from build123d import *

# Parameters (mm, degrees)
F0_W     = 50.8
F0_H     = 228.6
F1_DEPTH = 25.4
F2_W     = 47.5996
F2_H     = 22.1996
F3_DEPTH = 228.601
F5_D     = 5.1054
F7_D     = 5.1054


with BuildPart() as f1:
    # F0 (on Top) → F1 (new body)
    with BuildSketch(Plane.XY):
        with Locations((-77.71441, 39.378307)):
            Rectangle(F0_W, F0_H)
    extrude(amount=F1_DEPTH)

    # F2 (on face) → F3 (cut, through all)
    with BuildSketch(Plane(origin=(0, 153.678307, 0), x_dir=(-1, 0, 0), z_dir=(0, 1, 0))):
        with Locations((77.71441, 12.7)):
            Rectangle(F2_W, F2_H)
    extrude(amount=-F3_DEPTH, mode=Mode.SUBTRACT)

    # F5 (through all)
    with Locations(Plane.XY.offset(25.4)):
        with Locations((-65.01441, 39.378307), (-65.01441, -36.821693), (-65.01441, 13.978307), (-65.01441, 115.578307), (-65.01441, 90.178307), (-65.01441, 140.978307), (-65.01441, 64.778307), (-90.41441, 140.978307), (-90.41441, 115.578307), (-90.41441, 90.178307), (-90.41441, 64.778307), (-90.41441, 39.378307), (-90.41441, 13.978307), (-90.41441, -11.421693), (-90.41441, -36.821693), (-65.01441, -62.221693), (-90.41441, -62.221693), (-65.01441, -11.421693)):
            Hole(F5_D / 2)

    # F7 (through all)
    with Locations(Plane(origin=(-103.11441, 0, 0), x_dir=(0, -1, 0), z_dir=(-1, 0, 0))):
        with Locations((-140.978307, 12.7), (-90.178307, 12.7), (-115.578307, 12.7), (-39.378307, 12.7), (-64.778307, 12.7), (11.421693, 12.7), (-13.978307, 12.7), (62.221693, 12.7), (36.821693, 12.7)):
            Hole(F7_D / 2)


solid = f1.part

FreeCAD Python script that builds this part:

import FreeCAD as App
import Part
import Sketcher

V = App.Vector
Q = App.Units.Quantity

doc = App.newDocument("Part")
body = doc.addObject("PartDesign::Body", "Body")

sketch1 = body.newObject("Sketcher::SketchObject", "Sketch")
sketch1.AttachmentSupport = (doc.getObject("XY_Plane"), [""])
sketch1.MapMode = "FlatFace"
sketch1.addGeometry([
    Part.LineSegment(V(-103, 154, 0), V(-103, -75, 0)),
    Part.LineSegment(V(-103, -75, 0), V(-52, -75, 0)),
    Part.LineSegment(V(-52, -75, 0), V(-52, 154, 0)),
    Part.LineSegment(V(-52, 154, 0), V(-103, 154, 0)),
], False)
sketch1.addConstraint([
    Sketcher.Constraint("Coincident", 0, 2, 1, 1),
    Sketcher.Constraint("Coincident", 1, 2, 2, 1),
    Sketcher.Constraint("Coincident", 2, 2, 3, 1),
    Sketcher.Constraint("Coincident", 3, 2, 0, 1),
    Sketcher.Constraint("Vertical", 0),
    Sketcher.Constraint("Horizontal", 1),
    Sketcher.Constraint("Vertical", 2),
    Sketcher.Constraint("Horizontal", 3),
    Sketcher.Constraint("DistanceX", 1, 1, 1, 2, Q("2 in")),
    Sketcher.Constraint("DistanceY", 0, 2, 0, 1, Q("9 in")),
    Sketcher.Constraint("DistanceX", 0, 2, -1, 1, 103.11441),
    Sketcher.Constraint("DistanceY", 0, 2, -1, 1, 74.921693),
])
pad1 = body.newObject("PartDesign::Pad", "Pad")
pad1.Profile = sketch1
pad1.Length = Q("1 in")

sketch2 = body.newObject("Sketcher::SketchObject", "Sketch001")
sketch2.AttachmentSupport = (doc.getObject("XZ_Plane"), [""])
sketch2.MapMode = "FlatFace"
sketch2.AttachmentOffset = App.Placement(V(0, 0, -153.678307), App.Rotation())
sketch2.addGeometry([
    Part.LineSegment(V(-54, 24, 0), V(-54, 2, 0)),
    Part.LineSegment(V(-54, 2, 0), V(-102, 2, 0)),
    Part.LineSegment(V(-102, 2, 0), V(-102, 24, 0)),
    Part.LineSegment(V(-102, 24, 0), V(-54, 24, 0)),
], False)
sketch2.addConstraint([
    Sketcher.Constraint("Coincident", 0, 2, 1, 1),
    Sketcher.Constraint("Coincident", 1, 2, 2, 1),
    Sketcher.Constraint("Coincident", 2, 2, 3, 1),
    Sketcher.Constraint("Coincident", 3, 2, 0, 1),
    Sketcher.Constraint("Vertical", 0),
    Sketcher.Constraint("Horizontal", 1),
    Sketcher.Constraint("Vertical", 2),
    Sketcher.Constraint("Horizontal", 3),
    Sketcher.Constraint("DistanceX", 1, 2, 1, 1, Q("1.874 in")),
    Sketcher.Constraint("DistanceY", 0, 2, 0, 1, Q("0.874 in")),
    Sketcher.Constraint("DistanceY", -1, 1, 0, 2, Q("0.063 in")),
    Sketcher.Constraint("DistanceX", 0, 2, -1, 1, 53.91461),
])
pocket1 = body.newObject("PartDesign::Pocket", "Pocket")
pocket1.Profile = sketch2
pocket1.Type = "ThroughAll"
pocket1.Reversed = True

sketch3 = body.newObject("Sketcher::SketchObject", "Sketch002")
sketch3.AttachmentSupport = (doc.getObject("XY_Plane"), [""])
sketch3.MapMode = "FlatFace"
sketch3.AttachmentOffset = App.Placement(V(0, 0, 1 * 25.4), App.Rotation())
sketch3.addGeometry([
    Part.Circle(V(-65, 39.4, 0), V(0, 0, 1), 2.6),
    Part.Circle(V(-65, -36.8, 0), V(0, 0, 1), 2.6),
    Part.Circle(V(-65, 14, 0), V(0, 0, 1), 2.6),
    Part.Circle(V(-65, 115.6, 0), V(0, 0, 1), 2.6),
    Part.Circle(V(-65, 90.2, 0), V(0, 0, 1), 2.6),
    Part.Circle(V(-65, 141, 0), V(0, 0, 1), 2.6),
    Part.Circle(V(-65, 64.8, 0), V(0, 0, 1), 2.6),
    Part.Circle(V(-90.4, 141, 0), V(0, 0, 1), 2.6),
    Part.Circle(V(-90.4, 115.6, 0), V(0, 0, 1), 2.6),
    Part.Circle(V(-90.4, 90.2, 0), V(0, 0, 1), 2.6),
    Part.Circle(V(-90.4, 64.8, 0), V(0, 0, 1), 2.6),
    Part.Circle(V(-90.4, 39.4, 0), V(0, 0, 1), 2.6),
    Part.Circle(V(-90.4, 14, 0), V(0, 0, 1), 2.6),
    Part.Circle(V(-90.4, -11.4, 0), V(0, 0, 1), 2.6),
    Part.Circle(V(-90.4, -36.8, 0), V(0, 0, 1), 2.6),
    Part.Circle(V(-65, -62.2, 0), V(0, 0, 1), 2.6),
    Part.Circle(V(-90.4, -62.2, 0), V(0, 0, 1), 2.6),
    Part.Circle(V(-65, -11.4, 0), V(0, 0, 1), 2.6),
], False)
sketch3.addConstraint([
    Sketcher.Constraint("Equal", 0, 1),
    Sketcher.Constraint("Equal", 1, 2),
    Sketcher.Constraint("Equal", 2, 3),
    Sketcher.Constraint("Equal", 3, 4),
    Sketcher.Constraint("Equal", 4, 5),
    Sketcher.Constraint("Equal", 5, 6),
    Sketcher.Constraint("Equal", 6, 7),
    Sketcher.Constraint("Equal", 7, 8),
    Sketcher.Constraint("Equal", 8, 9),
    Sketcher.Constraint("Equal", 9, 10),
    Sketcher.Constraint("Equal", 10, 11),
    Sketcher.Constraint("Equal", 11, 12),
    Sketcher.Constraint("Equal", 12, 13),
    Sketcher.Constraint("Equal", 13, 14),
    Sketcher.Constraint("Equal", 14, 15),
    Sketcher.Constraint("Equal", 15, 16),
    Sketcher.Constraint("Equal", 16, 17),
    Sketcher.Constraint("Horizontal", 5, 3, 7, 3),
    Sketcher.Constraint("Horizontal", 3, 3, 8, 3),
    Sketcher.Constraint("Horizontal", 4, 3, 9, 3),
    Sketcher.Constraint("Horizontal", 6, 3, 10, 3),
    Sketcher.Constraint("Horizontal", 0, 3, 11, 3),
    Sketcher.Constraint("Horizontal", 2, 3, 12, 3),
    Sketcher.Constraint("Horizontal", 1, 3, 14, 3),
    Sketcher.Constraint("Horizontal", 15, 3, 16, 3),
    Sketcher.Constraint("Horizontal", 13, 3, 17, 3),
    Sketcher.Constraint("Vertical", 0, 3, 1, 3),
    Sketcher.Constraint("Vertical", 1, 3, 2, 3),
    Sketcher.Constraint("Vertical", 2, 3, 3, 3),
    Sketcher.Constraint("Vertical", 3, 3, 4, 3),
    Sketcher.Constraint("Vertical", 4, 3, 5, 3),
    Sketcher.Constraint("Vertical", 5, 3, 6, 3),
    Sketcher.Constraint("Vertical", 7, 3, 8, 3),
    Sketcher.Constraint("Vertical", 8, 3, 9, 3),
    Sketcher.Constraint("Vertical", 9, 3, 10, 3),
    Sketcher.Constraint("Vertical", 10, 3, 11, 3),
    Sketcher.Constraint("Vertical", 11, 3, 12, 3),
    Sketcher.Constraint("Vertical", 12, 3, 13, 3),
    Sketcher.Constraint("Vertical", 13, 3, 14, 3),
    Sketcher.Constraint("Vertical", 6, 3, 15, 3),
    Sketcher.Constraint("Vertical", 14, 3, 16, 3),
    Sketcher.Constraint("Vertical", 15, 3, 17, 3),
    Sketcher.Constraint("Diameter", 0, Q("0.201 in")),
    Sketcher.Constraint("DistanceY", 1, 3, 0, 3, Q("3 in")),
    Sketcher.Constraint("DistanceY", 2, 3, 0, 3, Q("1 in")),
    Sketcher.Constraint("DistanceY", 0, 3, 3, 3, Q("3 in")),
    Sketcher.Constraint("DistanceY", 4, 3, 3, 3, Q("1 in")),
    Sketcher.Constraint("DistanceY", 3, 3, 5, 3, Q("1 in")),
    Sketcher.Constraint("DistanceY", 0, 3, 6, 3, Q("1 in")),
    Sketcher.Constraint("DistanceX", 7, 3, 5, 3, Q("1 in")),
    Sketcher.Constraint("DistanceY", 13, 3, 12, 3, Q("1 in")),
    Sketcher.Constraint("DistanceY", 15, 3, 1, 3, Q("1 in")),
    Sketcher.Constraint("DistanceX", 0, 3, -1, 1, 65.01441),
    Sketcher.Constraint("DistanceY", -1, 1, 0, 3, 39.378307),
])
doc.recompute()
hole = body.newObject("PartDesign::Hole", "Hole")
hole.Profile = sketch3
hole.ThreadType = "None"
hole.Diameter = Q("0.201 in")
hole.DepthType = "ThroughAll"

sketch4 = body.newObject("Sketcher::SketchObject", "Sketch003")
sketch4.AttachmentSupport = (doc.getObject("YZ_Plane"), [""])
sketch4.MapMode = "FlatFace"
sketch4.AttachmentOffset = App.Placement(V(0, 0, -103.11441), App.Rotation())
sketch4.addGeometry([
    Part.Circle(V(141, 12.7, 0), V(0, 0, 1), 2.6),
    Part.Circle(V(90.2, 12.7, 0), V(0, 0, 1), 2.6),
    Part.Circle(V(115.6, 12.7, 0), V(0, 0, 1), 2.6),
    Part.Circle(V(39.4, 12.7, 0), V(0, 0, 1), 2.6),
    Part.Circle(V(64.8, 12.7, 0), V(0, 0, 1), 2.6),
    Part.Circle(V(-11.4, 12.7, 0), V(0, 0, 1), 2.6),
    Part.Circle(V(14, 12.7, 0), V(0, 0, 1), 2.6),
    Part.Circle(V(-62.2, 12.7, 0), V(0, 0, 1), 2.6),
    Part.Circle(V(-36.8, 12.7, 0), V(0, 0, 1), 2.6),
], False)
sketch4.addConstraint([
    Sketcher.Constraint("Equal", 0, 1),
    Sketcher.Constraint("Equal", 1, 2),
    Sketcher.Constraint("Equal", 2, 3),
    Sketcher.Constraint("Equal", 3, 4),
    Sketcher.Constraint("Equal", 4, 5),
    Sketcher.Constraint("Equal", 5, 6),
    Sketcher.Constraint("Equal", 6, 7),
    Sketcher.Constraint("Equal", 7, 8),
    Sketcher.Constraint("Horizontal", 0, 3, 1, 3),
    Sketcher.Constraint("Horizontal", 1, 3, 2, 3),
    Sketcher.Constraint("Horizontal", 2, 3, 3, 3),
    Sketcher.Constraint("Horizontal", 3, 3, 4, 3),
    Sketcher.Constraint("Horizontal", 4, 3, 5, 3),
    Sketcher.Constraint("Horizontal", 5, 3, 6, 3),
    Sketcher.Constraint("Horizontal", 6, 3, 7, 3),
    Sketcher.Constraint("Horizontal", 7, 3, 8, 3),
    Sketcher.Constraint("Diameter", 0, Q("0.201 in")),
    Sketcher.Constraint("DistanceX", 1, 3, 0, 3, Q("2 in")),
    Sketcher.Constraint("DistanceX", 1, 3, 2, 3, Q("1 in")),
    Sketcher.Constraint("DistanceX", 3, 3, 1, 3, Q("2 in")),
    Sketcher.Constraint("DistanceX", 3, 3, 4, 3, Q("1 in")),
    Sketcher.Constraint("DistanceX", 5, 3, 3, 3, Q("2 in")),
    Sketcher.Constraint("DistanceX", 6, 3, 3, 3, Q("1 in")),
    Sketcher.Constraint("DistanceX", 7, 3, 5, 3, Q("2 in")),
    Sketcher.Constraint("DistanceX", 7, 3, 8, 3, Q("1 in")),
    Sketcher.Constraint("DistanceY", -1, 1, 0, 3, Q("0.5 in")),
    Sketcher.Constraint("DistanceX", -1, 1, 0, 3, 140.978307),
])
doc.recompute()
hole2 = body.newObject("PartDesign::Hole", "Hole001")
hole2.Profile = sketch4
hole2.ThreadType = "None"
hole2.Diameter = Q("0.201 in")
hole2.DepthType = "ThroughAll"
hole2.Reversed = True

doc.recompute()
